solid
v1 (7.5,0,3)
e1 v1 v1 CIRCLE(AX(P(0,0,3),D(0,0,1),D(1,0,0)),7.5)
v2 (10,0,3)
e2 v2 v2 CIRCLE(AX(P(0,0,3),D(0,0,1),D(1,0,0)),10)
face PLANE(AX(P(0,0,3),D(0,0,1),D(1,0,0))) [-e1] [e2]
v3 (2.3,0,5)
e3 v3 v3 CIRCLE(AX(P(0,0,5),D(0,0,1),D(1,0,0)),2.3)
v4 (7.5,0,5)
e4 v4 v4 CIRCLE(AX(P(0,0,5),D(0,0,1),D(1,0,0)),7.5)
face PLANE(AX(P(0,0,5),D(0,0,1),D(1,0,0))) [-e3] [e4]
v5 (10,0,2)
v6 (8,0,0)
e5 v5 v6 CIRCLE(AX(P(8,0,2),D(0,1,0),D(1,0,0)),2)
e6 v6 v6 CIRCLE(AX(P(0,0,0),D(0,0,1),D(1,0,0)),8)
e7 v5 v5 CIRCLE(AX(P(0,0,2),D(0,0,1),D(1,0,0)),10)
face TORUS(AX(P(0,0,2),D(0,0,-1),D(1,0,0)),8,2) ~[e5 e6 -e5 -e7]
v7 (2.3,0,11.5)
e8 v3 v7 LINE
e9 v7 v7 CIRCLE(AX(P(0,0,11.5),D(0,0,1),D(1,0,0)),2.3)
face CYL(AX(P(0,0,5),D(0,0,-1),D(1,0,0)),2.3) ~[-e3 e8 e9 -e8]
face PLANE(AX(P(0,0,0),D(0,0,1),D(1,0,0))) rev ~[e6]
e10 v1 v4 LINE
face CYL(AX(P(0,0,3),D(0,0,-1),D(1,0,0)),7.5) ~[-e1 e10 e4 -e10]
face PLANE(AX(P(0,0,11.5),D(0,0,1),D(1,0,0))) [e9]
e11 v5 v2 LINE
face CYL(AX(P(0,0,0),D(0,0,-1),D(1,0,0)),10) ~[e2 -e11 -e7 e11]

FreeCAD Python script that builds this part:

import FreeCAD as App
import Part
import Sketcher
from FreeCAD import Vector


def edges_at(feature, points):
    """Names of the edges that pass closest to the given points."""
    edges = feature.Shape.Edges
    near = lambda p: min(range(len(edges)), key=lambda i: edges[i].distToShape(Part.Vertex(*p))[0])
    return sorted({f"Edge{near(p) + 1}" for p in points})

doc = App.newDocument("Part")
body = doc.addObject("PartDesign::Body", "Body")

# Sketch on XY plane
sketch1 = body.newObject("Sketcher::SketchObject", "Sketch")
sketch1.AttachmentSupport = (doc.getObject("XY_Plane"), [""])
sketch1.MapMode = "FlatFace"
sketch1.addGeometry(Part.Circle(Vector(0, 0, 0), Vector(0, 0, 1), 10), False)
sketch1.addConstraint([
    Sketcher.Constraint("Coincident", 0, 3, -1, 1),
    Sketcher.Constraint("Diameter", 0, 20.0),
])
pad1 = body.newObject("PartDesign::Pad", "Pad")
pad1.Profile = sketch1
pad1.Length = 3
doc.recompute()

fillet = body.newObject("PartDesign::Fillet", "Fillet")
fillet.Base = (pad1, edges_at(pad1, [(-10, 0, 0)]))
fillet.Radius = 2

# Sketch on XY plane
sketch2 = body.newObject("Sketcher::SketchObject", "Sketch001")
sketch2.AttachmentSupport = (doc.getObject("XY_Plane"), [""])
sketch2.MapMode = "FlatFace"
sketch2.AttachmentOffset = App.Placement(Vector(0, 0, 3), App.Rotation())
sketch2.addGeometry(Part.Circle(Vector(0, 0, 0), Vector(0, 0, 1), 8), False)
sketch2.addConstraint([
    Sketcher.Constraint("Coincident", 0, 3, -1, 1),
    Sketcher.Constraint("Diameter", 0, 15.0),
])
pad2 = body.newObject("PartDesign::Pad", "Pad001")
pad2.Profile = sketch2
pad2.Length = 2

# Sketch on XY plane
sketch3 = body.newObject("Sketcher::SketchObject", "Sketch002")
sketch3.AttachmentSupport = (doc.getObject("XY_Plane"), [""])
sketch3.MapMode = "FlatFace"
sketch3.AttachmentOffset = App.Placement(Vector(0, 0, 5), App.Rotation())
sketch3.addGeometry(Part.Circle(Vector(0, 0, 0), Vector(0, 0, 1), 2.3), False)
sketch3.addConstraint([
    Sketcher.Constraint("Coincident", 0, 3, -1, 1),
    Sketcher.Constraint("Diameter", 0, 4.6),
])
pad3 = body.newObject("PartDesign::Pad", "Pad002")
pad3.Profile = sketch3
pad3.Length = 6.5

doc.recompute()
